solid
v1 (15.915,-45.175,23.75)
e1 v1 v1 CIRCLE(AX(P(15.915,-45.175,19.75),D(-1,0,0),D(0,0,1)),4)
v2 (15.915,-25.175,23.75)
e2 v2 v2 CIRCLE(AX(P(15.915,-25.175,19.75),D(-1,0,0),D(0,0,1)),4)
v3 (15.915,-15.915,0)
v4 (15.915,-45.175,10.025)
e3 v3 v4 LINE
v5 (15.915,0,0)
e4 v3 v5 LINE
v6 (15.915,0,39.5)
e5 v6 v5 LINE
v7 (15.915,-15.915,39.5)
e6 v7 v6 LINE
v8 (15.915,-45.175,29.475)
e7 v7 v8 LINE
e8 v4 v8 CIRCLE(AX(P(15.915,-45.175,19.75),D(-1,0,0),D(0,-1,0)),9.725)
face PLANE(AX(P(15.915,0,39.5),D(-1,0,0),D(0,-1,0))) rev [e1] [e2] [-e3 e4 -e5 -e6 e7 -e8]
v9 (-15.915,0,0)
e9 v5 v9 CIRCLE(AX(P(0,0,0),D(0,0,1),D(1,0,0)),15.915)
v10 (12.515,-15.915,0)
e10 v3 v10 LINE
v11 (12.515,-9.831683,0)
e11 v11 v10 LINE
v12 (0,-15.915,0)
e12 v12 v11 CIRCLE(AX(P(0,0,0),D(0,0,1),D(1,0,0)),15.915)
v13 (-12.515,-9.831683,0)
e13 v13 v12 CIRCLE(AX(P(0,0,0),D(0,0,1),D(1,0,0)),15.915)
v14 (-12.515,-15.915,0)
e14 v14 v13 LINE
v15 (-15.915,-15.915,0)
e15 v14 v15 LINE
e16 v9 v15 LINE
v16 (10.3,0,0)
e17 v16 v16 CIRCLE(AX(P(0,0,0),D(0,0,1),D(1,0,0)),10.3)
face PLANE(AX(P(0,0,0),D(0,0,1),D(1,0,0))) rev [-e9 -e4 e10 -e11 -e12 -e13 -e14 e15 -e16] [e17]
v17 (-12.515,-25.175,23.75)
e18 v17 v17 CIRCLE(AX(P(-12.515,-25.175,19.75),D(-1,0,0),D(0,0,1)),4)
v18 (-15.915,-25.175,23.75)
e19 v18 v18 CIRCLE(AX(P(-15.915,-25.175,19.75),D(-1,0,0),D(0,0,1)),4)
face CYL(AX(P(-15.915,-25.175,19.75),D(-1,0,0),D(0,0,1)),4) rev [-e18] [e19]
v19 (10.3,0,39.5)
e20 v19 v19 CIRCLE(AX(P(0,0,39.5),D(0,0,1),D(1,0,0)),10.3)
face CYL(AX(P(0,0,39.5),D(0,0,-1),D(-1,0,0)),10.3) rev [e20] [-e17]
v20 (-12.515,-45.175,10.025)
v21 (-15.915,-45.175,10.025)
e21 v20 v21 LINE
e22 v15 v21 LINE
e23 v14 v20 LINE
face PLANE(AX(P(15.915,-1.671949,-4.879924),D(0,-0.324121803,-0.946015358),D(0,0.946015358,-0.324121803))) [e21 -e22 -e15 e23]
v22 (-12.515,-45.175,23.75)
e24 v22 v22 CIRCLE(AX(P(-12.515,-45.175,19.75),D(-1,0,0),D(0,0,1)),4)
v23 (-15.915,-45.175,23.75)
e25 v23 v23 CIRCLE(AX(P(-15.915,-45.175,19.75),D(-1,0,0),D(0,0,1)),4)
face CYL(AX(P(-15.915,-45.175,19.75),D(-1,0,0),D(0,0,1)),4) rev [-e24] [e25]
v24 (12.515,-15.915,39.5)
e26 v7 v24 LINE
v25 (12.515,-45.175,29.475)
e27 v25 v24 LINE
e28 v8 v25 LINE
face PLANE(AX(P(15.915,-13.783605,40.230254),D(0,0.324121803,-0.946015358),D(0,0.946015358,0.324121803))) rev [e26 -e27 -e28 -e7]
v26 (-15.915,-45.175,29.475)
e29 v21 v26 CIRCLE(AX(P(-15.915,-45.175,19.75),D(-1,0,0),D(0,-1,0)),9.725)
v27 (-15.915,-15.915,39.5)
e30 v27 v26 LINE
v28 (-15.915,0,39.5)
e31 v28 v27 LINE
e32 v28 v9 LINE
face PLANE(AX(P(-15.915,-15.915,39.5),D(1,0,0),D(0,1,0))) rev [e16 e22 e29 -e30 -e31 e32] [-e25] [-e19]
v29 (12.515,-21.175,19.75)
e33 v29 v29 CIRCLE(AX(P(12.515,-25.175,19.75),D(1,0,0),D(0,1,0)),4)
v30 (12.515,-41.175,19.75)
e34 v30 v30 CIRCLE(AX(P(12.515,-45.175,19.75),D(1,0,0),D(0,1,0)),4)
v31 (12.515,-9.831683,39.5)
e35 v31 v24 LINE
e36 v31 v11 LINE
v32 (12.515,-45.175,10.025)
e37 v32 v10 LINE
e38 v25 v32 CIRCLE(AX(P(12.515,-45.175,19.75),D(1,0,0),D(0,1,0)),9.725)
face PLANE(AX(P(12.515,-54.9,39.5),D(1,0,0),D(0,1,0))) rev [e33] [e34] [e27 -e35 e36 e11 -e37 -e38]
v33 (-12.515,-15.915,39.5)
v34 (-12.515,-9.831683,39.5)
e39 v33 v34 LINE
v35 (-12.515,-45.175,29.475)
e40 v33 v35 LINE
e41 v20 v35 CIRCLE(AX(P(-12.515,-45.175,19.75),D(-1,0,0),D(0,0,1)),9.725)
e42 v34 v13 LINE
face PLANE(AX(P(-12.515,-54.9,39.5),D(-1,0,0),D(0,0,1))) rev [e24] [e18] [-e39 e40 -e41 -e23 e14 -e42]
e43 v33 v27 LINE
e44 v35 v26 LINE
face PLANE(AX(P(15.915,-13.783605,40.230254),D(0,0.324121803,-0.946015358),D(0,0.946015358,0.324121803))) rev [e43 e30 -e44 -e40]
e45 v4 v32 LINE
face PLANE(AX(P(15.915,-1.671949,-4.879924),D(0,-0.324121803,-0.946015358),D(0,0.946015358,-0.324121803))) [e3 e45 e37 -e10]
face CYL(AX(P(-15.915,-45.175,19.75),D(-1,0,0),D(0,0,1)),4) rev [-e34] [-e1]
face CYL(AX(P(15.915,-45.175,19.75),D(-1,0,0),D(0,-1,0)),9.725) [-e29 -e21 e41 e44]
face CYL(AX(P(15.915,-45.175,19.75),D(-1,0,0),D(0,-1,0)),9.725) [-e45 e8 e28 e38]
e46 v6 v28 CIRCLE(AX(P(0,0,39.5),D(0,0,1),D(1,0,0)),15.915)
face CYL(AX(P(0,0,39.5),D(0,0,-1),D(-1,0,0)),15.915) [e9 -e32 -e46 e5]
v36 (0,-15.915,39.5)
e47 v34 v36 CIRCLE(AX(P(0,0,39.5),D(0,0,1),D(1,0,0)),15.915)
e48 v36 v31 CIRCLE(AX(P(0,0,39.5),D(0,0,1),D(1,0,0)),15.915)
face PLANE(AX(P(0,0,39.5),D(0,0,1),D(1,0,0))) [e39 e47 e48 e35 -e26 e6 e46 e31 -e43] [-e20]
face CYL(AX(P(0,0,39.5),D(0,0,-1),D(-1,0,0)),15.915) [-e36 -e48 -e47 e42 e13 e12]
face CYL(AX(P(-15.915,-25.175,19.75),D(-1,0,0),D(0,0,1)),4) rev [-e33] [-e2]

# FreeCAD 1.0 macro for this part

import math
import FreeCAD as App
import Part
import Sketcher
from FreeCAD import Vector
Q = App.Units.Quantity

doc = App.newDocument("Part")
body = doc.addObject("PartDesign::Body", "Body")

# Sketch on XY plane
sketch1 = body.newObject("Sketcher::SketchObject", "Sketch")
sketch1.AttachmentSupport = (doc.getObject("XY_Plane"), [""])
sketch1.MapMode = "FlatFace"
sketch1.addGeometry(Part.LineSegment(Vector(-15.915, 0, 0), Vector(-15.915, -54.9, 0)), False)
sketch1.addGeometry(Part.LineSegment(Vector(-15.915, -54.9, 0), Vector(-12.515, -54.9, 0)), False)
sketch1.addGeometry(Part.LineSegment(Vector(-12.515, -54.9, 0), Vector(-12.515, -9.831683, 0)), False)
sketch1.addGeometry(Part.ArcOfCircle(Part.Circle(Vector(0, 0, 0), Vector(0, 0, 1), 15.915), math.radians(-141.847107), math.radians(-38.152893)), False)
sketch1.addGeometry(Part.LineSegment(Vector(12.515, -9.831683, 0), Vector(12.515, -54.9, 0)), False)
sketch1.addGeometry(Part.LineSegment(Vector(12.515, -54.9, 0), Vector(15.915, -54.9, 0)), False)
sketch1.addGeometry(Part.LineSegment(Vector(15.915, -54.9, 0), Vector(15.915, 0, 0)), False)
sketch1.addGeometry(Part.ArcOfCircle(Part.Circle(Vector(0, 0, 0), Vector(0, 0, 1), 15.915), math.radians(0), math.radians(180)), False)
sketch1.addGeometry(Part.Circle(Vector(0, 0, 0), Vector(0, 0, 1), 10.3), False)
sketch1.addConstraint(Sketcher.Constraint("Coincident", 0, 2, 1, 1))
sketch1.addConstraint(Sketcher.Constraint("Coincident", 1, 2, 2, 1))
sketch1.addConstraint(Sketcher.Constraint("Coincident", 2, 2, 3, 1))
sketch1.addConstraint(Sketcher.Constraint("Coincident", 3, 2, 4, 1))
sketch1.addConstraint(Sketcher.Constraint("Coincident", 4, 2, 5, 1))
sketch1.addConstraint(Sketcher.Constraint("Coincident", 5, 2, 6, 1))
sketch1.addConstraint(Sketcher.Constraint("Tangent", 6, 2, 7, 1))
sketch1.addConstraint(Sketcher.Constraint("Tangent", 7, 2, 0, 1))
sketch1.addConstraint(Sketcher.Constraint("Vertical", 0))
sketch1.addConstraint(Sketcher.Constraint("Horizontal", 1))
sketch1.addConstraint(Sketcher.Constraint("Vertical", 2))
sketch1.addConstraint(Sketcher.Constraint("Vertical", 4))
sketch1.addConstraint(Sketcher.Constraint("Horizontal", 5))
sketch1.addConstraint(Sketcher.Constraint("Vertical", 6))
sketch1.addConstraint(Sketcher.Constraint("Coincident", 3, 3, -1, 1))
sketch1.addConstraint(Sketcher.Constraint("Coincident", 7, 3, -1, 1))
sketch1.addConstraint(Sketcher.Constraint("Coincident", 8, 3, -1, 1))
sketch1.addConstraint(Sketcher.Constraint("Equal", 3, 7))
sketch1.addConstraint(Sketcher.Constraint("Symmetric", 1, 2, 4, 2, -2))
sketch1.addConstraint(Sketcher.Constraint("Diameter", 8, Q("20.6 mm")))
sketch1.addConstraint(Sketcher.Constraint("DistanceX", 1, 1, 1, 2, Q("3.4 mm")))
sketch1.addConstraint(Sketcher.Constraint("DistanceY", 0, 2, 0, 1, Q("54.9 mm")))
sketch1.addConstraint(Sketcher.Constraint("Radius", 3, Q("15.915 mm")))
pad1 = body.newObject("PartDesign::Pad", "Pad")
pad1.Profile = sketch1
pad1.Length = 39.5

# Sketch on YZ plane
sketch2 = body.newObject("Sketcher::SketchObject", "Sketch001")
sketch2.AttachmentSupport = (doc.getObject("YZ_Plane"), [""])
sketch2.MapMode = "FlatFace"
sketch2.AttachmentOffset = App.Placement(Vector(0, 0, -15.915), App.Rotation())
sketch2.addGeometry(Part.ArcOfCircle(Part.Circle(Vector(-45.175, 19.75, 0), Vector(0, 0, 1), 9.725), math.radians(180), math.radians(270)), False)
sketch2.addGeometry(Part.LineSegment(Vector(-45.175, 10.025, 0), Vector(-15.915, 0, 0)), False)
sketch2.addGeometry(Part.LineSegment(Vector(-15.915, 0, 0), Vector(-54.9, 0, 0)), False)
sketch2.addGeometry(Part.LineSegment(Vector(-54.9, 0, 0), Vector(-54.9, 19.75, 0)), False)
sketch2.addGeometry(Part.LineSegment(Vector(-15.915, 39.5, 0), Vector(-45.175, 29.475, 0)), False)
sketch2.addGeometry(Part.ArcOfCircle(Part.Circle(Vector(-45.175, 19.75, 0), Vector(0, 0, 1), 9.725), math.radians(90), math.radians(180)), False)
sketch2.addGeometry(Part.LineSegment(Vector(-54.9, 19.75, 0), Vector(-54.9, 39.5, 0)), False)
sketch2.addGeometry(Part.LineSegment(Vector(-54.9, 39.5, 0), Vector(-15.915, 39.5, 0)), False)
sketch2.addConstraint(Sketcher.Constraint("Coincident", 0, 2, 1, 1))
sketch2.addConstraint(Sketcher.Constraint("Coincident", 1, 2, 2, 1))
sketch2.addConstraint(Sketcher.Constraint("Coincident", 2, 2, 3, 1))
sketch2.addConstraint(Sketcher.Constraint("Tangent", 3, 2, 0, 1))
sketch2.addConstraint(Sketcher.Constraint("Coincident", 4, 2, 5, 1))
sketch2.addConstraint(Sketcher.Constraint("Tangent", 5, 2, 6, 1))
sketch2.addConstraint(Sketcher.Constraint("Coincident", 6, 2, 7, 1))
sketch2.addConstraint(Sketcher.Constraint("Coincident", 7, 2, 4, 1))
sketch2.addConstraint(Sketcher.Constraint("Horizontal", 2))
sketch2.addConstraint(Sketcher.Constraint("Vertical", 3))
sketch2.addConstraint(Sketcher.Constraint("Vertical", 6))
sketch2.addConstraint(Sketcher.Constraint("Horizontal", 7))
sketch2.addConstraint(Sketcher.Constraint("Coincident", 5, 3, 0, 3))
sketch2.addConstraint(Sketcher.Constraint("Equal", 0, 5))
sketch2.addConstraint(Sketcher.Constraint("PointOnObject", 1, 2, -1))
sketch2.addConstraint(Sketcher.Constraint("Vertical", 5, 3, 0, 2))
sketch2.addConstraint(Sketcher.Constraint("Vertical", 0, 2, 4, 2))
sketch2.addConstraint(Sketcher.Constraint("Vertical", 1, 2, 7, 2))
sketch2.addConstraint(Sketcher.Constraint("Equal", 3, 6))
sketch2.addConstraint(Sketcher.Constraint("Radius", 0, Q("9.725 mm")))
sketch2.addConstraint(Sketcher.Constraint("DistanceY", 3, 1, 3, 2, Q("19.75 mm")))
sketch2.addConstraint(Sketcher.Constraint("DistanceX", 2, 2, -1, 1, Q("54.9 mm")))
sketch2.addConstraint(Sketcher.Constraint("DistanceX", 2, 2, 2, 1, Q("38.985 mm")))
pocket1 = body.newObject("PartDesign::Pocket", "Pocket")
pocket1.Profile = sketch2
pocket1.Type = "ThroughAll"
pocket1.Reversed = True

# Sketch on YZ plane
sketch3 = body.newObject("Sketcher::SketchObject", "Sketch002")
sketch3.AttachmentSupport = (doc.getObject("YZ_Plane"), [""])
sketch3.MapMode = "FlatFace"
sketch3.AttachmentOffset = App.Placement(Vector(0, 0, -15.915), App.Rotation())
sketch3.addGeometry(Part.Circle(Vector(-45.175, 19.75, 0), Vector(0, 0, 1), 4), False)
sketch3.addGeometry(Part.Circle(Vector(-25.175, 19.75, 0), Vector(0, 0, 1), 4), False)
sketch3.addConstraint(Sketcher.Constraint("Equal", 0, 1))
sketch3.addConstraint(Sketcher.Constraint("Horizontal", 0, 3, 1, 3))
sketch3.addConstraint(Sketcher.Constraint("Diameter", 0, Q("8 mm")))
sketch3.addConstraint(Sketcher.Constraint("DistanceX", 0, 3, 1, 3, Q("20 mm")))
sketch3.addConstraint(Sketcher.Constraint("DistanceY", -1, 1, 0, 3, Q("19.75 mm")))
sketch3.addConstraint(Sketcher.Constraint("DistanceX", 0, 3, -1, 1, Q("45.175 mm")))
doc.recompute()
hole = body.newObject("PartDesign::Hole", "Hole")
hole.Profile = sketch3
hole.ThreadType = "None"
hole.Diameter = 8
hole.DepthType = "ThroughAll"
hole.Reversed = True

doc.recompute()
